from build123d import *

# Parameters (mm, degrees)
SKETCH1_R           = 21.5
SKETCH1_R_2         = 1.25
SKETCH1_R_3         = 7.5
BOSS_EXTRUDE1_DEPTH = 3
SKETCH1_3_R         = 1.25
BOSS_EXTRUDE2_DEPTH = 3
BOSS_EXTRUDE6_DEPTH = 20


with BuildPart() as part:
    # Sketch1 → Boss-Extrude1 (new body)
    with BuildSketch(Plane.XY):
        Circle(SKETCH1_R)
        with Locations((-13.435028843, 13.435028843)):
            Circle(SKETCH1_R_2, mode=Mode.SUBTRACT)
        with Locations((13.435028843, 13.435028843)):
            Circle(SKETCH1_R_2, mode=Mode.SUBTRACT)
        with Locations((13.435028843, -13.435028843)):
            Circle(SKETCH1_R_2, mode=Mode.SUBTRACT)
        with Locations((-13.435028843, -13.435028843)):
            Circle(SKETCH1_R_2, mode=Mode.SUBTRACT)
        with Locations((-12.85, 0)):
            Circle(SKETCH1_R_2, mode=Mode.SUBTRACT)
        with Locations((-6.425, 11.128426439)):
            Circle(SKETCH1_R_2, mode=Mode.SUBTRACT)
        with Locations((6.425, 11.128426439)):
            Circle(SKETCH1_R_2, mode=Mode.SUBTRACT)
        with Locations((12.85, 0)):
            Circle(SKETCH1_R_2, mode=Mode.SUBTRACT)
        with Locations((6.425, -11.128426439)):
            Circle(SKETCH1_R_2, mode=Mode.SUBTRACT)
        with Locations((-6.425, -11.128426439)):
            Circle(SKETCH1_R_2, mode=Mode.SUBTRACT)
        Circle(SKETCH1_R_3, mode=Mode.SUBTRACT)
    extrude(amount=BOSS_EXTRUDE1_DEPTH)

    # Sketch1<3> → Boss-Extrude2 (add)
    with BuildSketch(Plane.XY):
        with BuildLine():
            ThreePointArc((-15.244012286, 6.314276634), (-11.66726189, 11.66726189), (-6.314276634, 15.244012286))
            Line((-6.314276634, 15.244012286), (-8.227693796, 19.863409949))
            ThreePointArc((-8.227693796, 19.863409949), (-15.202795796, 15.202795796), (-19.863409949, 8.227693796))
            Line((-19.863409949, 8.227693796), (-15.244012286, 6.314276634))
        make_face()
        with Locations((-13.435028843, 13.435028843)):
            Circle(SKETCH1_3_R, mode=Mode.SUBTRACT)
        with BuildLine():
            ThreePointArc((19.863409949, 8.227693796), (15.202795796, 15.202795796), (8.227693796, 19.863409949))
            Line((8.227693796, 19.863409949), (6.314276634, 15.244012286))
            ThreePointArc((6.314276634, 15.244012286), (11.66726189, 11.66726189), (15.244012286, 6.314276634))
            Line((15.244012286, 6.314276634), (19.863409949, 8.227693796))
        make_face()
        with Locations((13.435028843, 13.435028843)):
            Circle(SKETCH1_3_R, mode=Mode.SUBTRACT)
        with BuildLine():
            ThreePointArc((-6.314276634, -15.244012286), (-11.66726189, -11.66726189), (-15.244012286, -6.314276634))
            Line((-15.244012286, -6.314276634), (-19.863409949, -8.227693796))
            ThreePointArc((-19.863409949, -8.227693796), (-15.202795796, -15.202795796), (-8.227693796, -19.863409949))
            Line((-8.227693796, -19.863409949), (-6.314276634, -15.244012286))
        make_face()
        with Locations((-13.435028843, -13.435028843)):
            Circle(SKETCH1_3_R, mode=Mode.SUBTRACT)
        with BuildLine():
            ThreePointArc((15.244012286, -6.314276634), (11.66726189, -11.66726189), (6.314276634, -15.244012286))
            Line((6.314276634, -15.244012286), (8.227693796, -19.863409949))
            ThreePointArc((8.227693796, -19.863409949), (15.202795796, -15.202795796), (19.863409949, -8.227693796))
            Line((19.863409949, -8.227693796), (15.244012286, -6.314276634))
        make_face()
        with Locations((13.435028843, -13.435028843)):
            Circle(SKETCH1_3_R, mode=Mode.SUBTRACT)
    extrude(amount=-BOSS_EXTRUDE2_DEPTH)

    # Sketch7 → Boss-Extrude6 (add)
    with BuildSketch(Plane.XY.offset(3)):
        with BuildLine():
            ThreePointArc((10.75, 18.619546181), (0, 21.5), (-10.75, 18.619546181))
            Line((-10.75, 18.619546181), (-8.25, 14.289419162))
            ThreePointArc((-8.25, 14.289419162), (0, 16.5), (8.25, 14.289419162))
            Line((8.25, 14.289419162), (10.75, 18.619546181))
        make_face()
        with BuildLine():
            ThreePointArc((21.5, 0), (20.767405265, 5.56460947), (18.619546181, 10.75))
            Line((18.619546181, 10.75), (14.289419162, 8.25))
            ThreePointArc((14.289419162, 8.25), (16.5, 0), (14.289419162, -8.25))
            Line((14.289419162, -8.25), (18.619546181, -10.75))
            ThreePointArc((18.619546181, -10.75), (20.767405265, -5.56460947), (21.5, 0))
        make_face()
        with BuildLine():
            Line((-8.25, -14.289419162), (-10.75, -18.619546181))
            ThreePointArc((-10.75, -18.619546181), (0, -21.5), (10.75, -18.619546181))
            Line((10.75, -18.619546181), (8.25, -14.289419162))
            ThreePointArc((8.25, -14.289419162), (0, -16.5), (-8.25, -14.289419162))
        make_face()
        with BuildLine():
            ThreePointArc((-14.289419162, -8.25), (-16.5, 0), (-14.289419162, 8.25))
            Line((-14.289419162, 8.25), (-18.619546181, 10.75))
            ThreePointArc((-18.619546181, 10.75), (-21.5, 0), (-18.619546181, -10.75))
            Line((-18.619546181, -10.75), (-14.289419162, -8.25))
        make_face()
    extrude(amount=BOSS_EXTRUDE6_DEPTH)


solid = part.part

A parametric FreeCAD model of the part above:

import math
import FreeCAD as App
import Part
import Sketcher
from FreeCAD import Vector
Q = App.Units.Quantity

doc = App.newDocument("Part")
body = doc.addObject("PartDesign::Body", "Body")

# Sketch on XY plane
sketch1 = body.newObject("Sketcher::SketchObject", "Sketch")
sketch1.AttachmentSupport = (doc.getObject("XY_Plane"), [""])
sketch1.MapMode = "FlatFace"
sketch1.addGeometry(Part.Circle(Vector(0, 0, 0), Vector(0, 0, 1), 21.5), False)
sketch1.addGeometry(Part.Circle(Vector(-13.435029, -13.435029, 0), Vector(0, 0, 1), 1.25), False)
sketch1.addGeometry(Part.Circle(Vector(-6.425, -11.128426, 0), Vector(0, 0, 1), 1.25), False)
sketch1.addGeometry(Part.Circle(Vector(-12.85, 0, 0), Vector(0, 0, 1), 1.25), False)
sketch1.addGeometry(Part.Circle(Vector(6.425, -11.128426, 0), Vector(0, 0, 1), 1.25), False)
sketch1.addGeometry(Part.Circle(Vector(13.435029, -13.435029, 0), Vector(0, 0, 1), 1.25), False)
sketch1.addGeometry(Part.Circle(Vector(12.85, 0, 0), Vector(0, 0, 1), 1.25), False)
sketch1.addGeometry(Part.Circle(Vector(-13.435029, 13.435029, 0), Vector(0, 0, 1), 1.25), False)
sketch1.addGeometry(Part.Circle(Vector(-6.425, 11.128426, 0), Vector(0, 0, 1), 1.25), False)
sketch1.addGeometry(Part.Circle(Vector(0, 0, 0), Vector(0, 0, 1), 7.5), False)
sketch1.addGeometry(Part.Circle(Vector(6.425, 11.128426, 0), Vector(0, 0, 1), 1.25), False)
sketch1.addGeometry(Part.Circle(Vector(13.435029, 13.435029, 0), Vector(0, 0, 1), 1.25), False)
sketch1.addConstraint(Sketcher.Constraint("Coincident", 0, 3, -1, 1))
sketch1.addConstraint(Sketcher.Constraint("Coincident", 9, 3, -1, 1))
sketch1.addConstraint(Sketcher.Constraint("Equal", 1, 2))
sketch1.addConstraint(Sketcher.Constraint("Equal", 2, 3))
sketch1.addConstraint(Sketcher.Constraint("Equal", 3, 4))
sketch1.addConstraint(Sketcher.Constraint("Equal", 4, 5))
sketch1.addConstraint(Sketcher.Constraint("Equal", 5, 6))
sketch1.addConstraint(Sketcher.Constraint("Equal", 6, 7))
sketch1.addConstraint(Sketcher.Constraint("Equal", 7, 8))
sketch1.addConstraint(Sketcher.Constraint("Equal", 8, 10))
sketch1.addConstraint(Sketcher.Constraint("Equal", 10, 11))
sketch1.addConstraint(Sketcher.Constraint("Symmetric", 3, 3, 6, 3, -1, 1))
sketch1.addConstraint(Sketcher.Constraint("Symmetric", 5, 3, 7, 3, -1, 1))
sketch1.addConstraint(Sketcher.Constraint("Symmetric", 4, 3, 8, 3, -1, 1))
sketch1.addConstraint(Sketcher.Constraint("Symmetric", 2, 3, 10, 3, -1, 1))
sketch1.addConstraint(Sketcher.Constraint("Symmetric", 1, 3, 11, 3, -1, 1))
sketch1.addConstraint(Sketcher.Constraint("Symmetric", 2, 3, 4, 3, -2))
sketch1.addConstraint(Sketcher.Constraint("Symmetric", 1, 3, 5, 3, -2))
sketch1.addConstraint(Sketcher.Constraint("PointOnObject", 3, 3, -1))
sketch1.addConstraint(Sketcher.Constraint("Diameter", 0, 43.0))
sketch1.addConstraint(Sketcher.Constraint("Diameter", 9, 15.0))
sketch1.addConstraint(Sketcher.Constraint("Diameter", 1, 2.5))
sketch1.addConstraint(Sketcher.Constraint("DistanceX", 3, 3, 6, 3, 25.7))
sketch1.addConstraint(Sketcher.Constraint("DistanceX", 2, 3, 4, 3, 12.85))
sketch1.addConstraint(Sketcher.Constraint("DistanceX", 1, 3, -1, 1, 13.435029))
sketch1.addConstraint(Sketcher.Constraint("DistanceY", 1, 3, -1, 1, 13.435029))
sketch1.addConstraint(Sketcher.Constraint("DistanceY", 2, 3, -1, 1, 11.128426))
pad1 = body.newObject("PartDesign::Pad", "Pad")
pad1.Profile = sketch1
pad1.Length = 3

# Sketch on XY plane
sketch2 = body.newObject("Sketcher::SketchObject", "Sketch001")
sketch2.AttachmentSupport = (doc.getObject("XY_Plane"), [""])
sketch2.MapMode = "FlatFace"
sketch2.addGeometry(Part.ArcOfCircle(Part.Circle(Vector(0, 0, 0), Vector(0, 0, 1), 16.5), math.radians(112.5), math.radians(157.5)), False)
sketch2.addGeometry(Part.LineSegment(Vector(-6.314277, 15.244012, 0), Vector(-8.227694, 19.86341, 0)), False)
sketch2.addGeometry(Part.ArcOfCircle(Part.Circle(Vector(0, 0, 0), Vector(0, 0, 1), 21.5), math.radians(112.5), math.radians(157.5)), False)
sketch2.addGeometry(Part.LineSegment(Vector(-19.86341, 8.227694, 0), Vector(-15.244012, 6.314277, 0)), False)
sketch2.addGeometry(Part.Circle(Vector(-13.435029, 13.435029, 0), Vector(0, 0, 1), 1.25), False)
sketch2.addGeometry(Part.ArcOfCircle(Part.Circle(Vector(0, 0, 0), Vector(0, 0, 1), 21.5), math.radians(22.5), math.radians(67.5)), False)
sketch2.addGeometry(Part.LineSegment(Vector(8.227694, 19.86341, 0), Vector(6.314277, 15.244012, 0)), False)
sketch2.addGeometry(Part.ArcOfCircle(Part.Circle(Vector(0, 0, 0), Vector(0, 0, 1), 16.5), math.radians(22.5), math.radians(67.5)), False)
sketch2.addGeometry(Part.LineSegment(Vector(15.244012, 6.314277, 0), Vector(19.86341, 8.227694, 0)), False)
sketch2.addGeometry(Part.Circle(Vector(13.435029, 13.435029, 0), Vector(0, 0, 1), 1.25), False)
sketch2.addGeometry(Part.ArcOfCircle(Part.Circle(Vector(0, 0, 0), Vector(0, 0, 1), 16.5), math.radians(-157.5), math.radians(-112.5)), False)
sketch2.addGeometry(Part.LineSegment(Vector(-15.244012, -6.314277, 0), Vector(-19.86341, -8.227694, 0)), False)
sketch2.addGeometry(Part.ArcOfCircle(Part.Circle(Vector(0, 0, 0), Vector(0, 0, 1), 21.5), math.radians(-157.5), math.radians(-112.5)), False)
sketch2.addGeometry(Part.LineSegment(Vector(-8.227694, -19.86341, 0), Vector(-6.314277, -15.244012, 0)), False)
sketch2.addGeometry(Part.Circle(Vector(-13.435029, -13.435029, 0), Vector(0, 0, 1), 1.25), False)
sketch2.addGeometry(Part.ArcOfCircle(Part.Circle(Vector(0, 0, 0), Vector(0, 0, 1), 16.5), math.radians(-67.5), math.radians(-22.5)), False)
sketch2.addGeometry(Part.LineSegment(Vector(6.314277, -15.244012, 0), Vector(8.227694, -19.86341, 0)), False)
sketch2.addGeometry(Part.ArcOfCircle(Part.Circle(Vector(0, 0, 0), Vector(0, 0, 1), 21.5), math.radians(-67.5), math.radians(-22.5)), False)
sketch2.addGeometry(Part.LineSegment(Vector(19.86341, -8.227694, 0), Vector(15.244012, -6.314277, 0)), False)
sketch2.addGeometry(Part.Circle(Vector(13.435029, -13.435029, 0), Vector(0, 0, 1), 1.25), False)
sketch2.addConstraint(Sketcher.Constraint("Coincident", 0, 1, 1, 1))
sketch2.addConstraint(Sketcher.Constraint("Coincident", 1, 2, 2, 1))
sketch2.addConstraint(Sketcher.Constraint("Coincident", 2, 2, 3, 1))
sketch2.addConstraint(Sketcher.Constraint("Coincident", 3, 2, 0, 2))
sketch2.addConstraint(Sketcher.Constraint("Coincident", 5, 2, 6, 1))
sketch2.addConstraint(Sketcher.Constraint("Coincident", 6, 2, 7, 2))
sketch2.addConstraint(Sketcher.Constraint("Coincident", 7, 1, 8, 1))
sketch2.addConstraint(Sketcher.Constraint("Coincident", 8, 2, 5, 1))
sketch2.addConstraint(Sketcher.Constraint("Coincident", 10, 1, 11, 1))
sketch2.addConstraint(Sketcher.Constraint("Coincident", 11, 2, 12, 1))
sketch2.addConstraint(Sketcher.Constraint("Coincident", 12, 2, 13, 1))
sketch2.addConstraint(Sketcher.Constraint("Coincident", 13, 2, 10, 2))
sketch2.addConstraint(Sketcher.Constraint("Coincident", 15, 1, 16, 1))
sketch2.addConstraint(Sketcher.Constraint("Coincident", 16, 2, 17, 1))
sketch2.addConstraint(Sketcher.Constraint("Coincident", 17, 2, 18, 1))
sketch2.addConstraint(Sketcher.Constraint("Coincident", 18, 2, 15, 2))
sketch2.addConstraint(Sketcher.Constraint("Coincident", 0, 3, -1, 1))
sketch2.addConstraint(Sketcher.Constraint("Coincident", 2, 3, -1, 1))
sketch2.addConstraint(Sketcher.Constraint("Coincident", 5, 3, -1, 1))
sketch2.addConstraint(Sketcher.Constraint("Coincident", 7, 3, -1, 1))
sketch2.addConstraint(Sketcher.Constraint("Coincident", 10, 3, -1, 1))
sketch2.addConstraint(Sketcher.Constraint("Coincident", 12, 3, -1, 1))
sketch2.addConstraint(Sketcher.Constraint("Coincident", 15, 3, -1, 1))
sketch2.addConstraint(Sketcher.Constraint("Coincident", 17, 3, -1, 1))
sketch2.addConstraint(Sketcher.Constraint("Equal", 2, 5))
sketch2.addConstraint(Sketcher.Constraint("Equal", 0, 7))
sketch2.addConstraint(Sketcher.Constraint("Equal", 4, 9))
sketch2.addConstraint(Sketcher.Constraint("Equal", 7, 10))
sketch2.addConstraint(Sketcher.Constraint("Equal", 5, 12))
sketch2.addConstraint(Sketcher.Constraint("Equal", 9, 14))
sketch2.addConstraint(Sketcher.Constraint("Equal", 10, 15))
sketch2.addConstraint(Sketcher.Constraint("Equal", 12, 17))
sketch2.addConstraint(Sketcher.Constraint("Equal", 14, 19))
sketch2.addConstraint(Sketcher.Constraint("Symmetric", 9, 3, 14, 3, -1, 1))
sketch2.addConstraint(Sketcher.Constraint("Symmetric", 4, 3, 19, 3, -1, 1))
sketch2.addConstraint(Sketcher.Constraint("Symmetric", 4, 3, 9, 3, -2))
sketch2.addConstraint(Sketcher.Constraint("Perpendicular", 3, 6))
sketch2.addConstraint(Sketcher.Constraint("Perpendicular", 1, 8))
sketch2.addConstraint(Sketcher.Constraint("Parallel", 8, 11))
sketch2.addConstraint(Sketcher.Constraint("Parallel", 6, 13))
sketch2.addConstraint(Sketcher.Constraint("Perpendicular", 11, 16))
sketch2.addConstraint(Sketcher.Constraint("Perpendicular", 13, 18))
sketch2.addConstraint(Sketcher.Constraint("Horizontal", 1, 2, 5, 2))
sketch2.addConstraint(Sketcher.Constraint("Horizontal", 0, 1, 6, 2))
sketch2.addConstraint(Sketcher.Constraint("Horizontal", 3, 2, 7, 1))
sketch2.addConstraint(Sketcher.Constraint("Horizontal", 13, 2, 15, 1))
sketch2.addConstraint(Sketcher.Constraint("Horizontal", 11, 2, 17, 2))
sketch2.addConstraint(Sketcher.Constraint("Vertical", 3, 2, 10, 1))
sketch2.addConstraint(Sketcher.Constraint("Vertical", 1, 2, 12, 2))
sketch2.addConstraint(Sketcher.Constraint("Diameter", 4, 2.5))
sketch2.addConstraint(Sketcher.Constraint("Radius", 0, 16.5))
sketch2.addConstraint(Sketcher.Constraint("Radius", 2, 21.5))
sketch2.addConstraint(Sketcher.Constraint("Angle", 1, Q("112.5 deg")))
sketch2.addConstraint(Sketcher.Constraint("DistanceX", 4, 3, -1, 1, 13.435029))
sketch2.addConstraint(Sketcher.Constraint("DistanceY", -1, 1, 4, 3, 13.435029))
sketch2.addConstraint(Sketcher.Constraint("DistanceY", -1, 1, 1, 2, 19.86341))
sketch2.addConstraint(Sketcher.Constraint("DistanceX", 2, 2, -1, 1, 19.86341))
pad2 = body.newObject("PartDesign::Pad", "Pad001")
pad2.Profile = sketch2
pad2.Length = 3
pad2.Reversed = True

# Sketch on XY plane
sketch3 = body.newObject("Sketcher::SketchObject", "Sketch002")
sketch3.AttachmentSupport = (doc.getObject("XY_Plane"), [""])
sketch3.MapMode = "FlatFace"
sketch3.AttachmentOffset = App.Placement(Vector(0, 0, 3), App.Rotation())
sketch3.addGeometry(Part.ArcOfCircle(Part.Circle(Vector(0, 0, 0), Vector(0, 0, 1), 21.5), math.radians(60), math.radians(120)), False)
sketch3.addGeometry(Part.LineSegment(Vector(-10.75, 18.619546, 0), Vector(-8.25, 14.289419, 0)), False)
sketch3.addGeometry(Part.ArcOfCircle(Part.Circle(Vector(0, 0, 0), Vector(0, 0, 1), 16.5), math.radians(60), math.radians(120)), False)
sketch3.addGeometry(Part.LineSegment(Vector(8.25, 14.289419, 0), Vector(10.75, 18.619546, 0)), False)
sketch3.addGeometry(Part.ArcOfCircle(Part.Circle(Vector(0, 0, 0), Vector(0, 0, 1), 21.5), math.radians(0), math.radians(30)), False)
sketch3.addGeometry(Part.LineSegment(Vector(18.619546, 10.75, 0), Vector(14.289419, 8.25, 0)), False)
sketch3.addGeometry(Part.ArcOfCircle(Part.Circle(Vector(0, 0, 0), Vector(0, 0, 1), 16.5), math.radians(-30), math.radians(30)), False)
sketch3.addGeometry(Part.LineSegment(Vector(14.289419, -8.25, 0), Vector(18.619546, -10.75, 0)), False)
sketch3.addGeometry(Part.ArcOfCircle(Part.Circle(Vector(0, 0, 0), Vector(0, 0, 1), 21.5), math.radians(-30), math.radians(0)), False)
sketch3.addGeometry(Part.LineSegment(Vector(-8.25, -14.289419, 0), Vector(-10.75, -18.619546, 0)), False)
sketch3.addGeometry(Part.ArcOfCircle(Part.Circle(Vector(0, 0, 0), Vector(0, 0, 1), 21.5), math.radians(-120), math.radians(-60)), False)
sketch3.addGeometry(Part.LineSegment(Vector(10.75, -18.619546, 0), Vector(8.25, -14.289419, 0)), False)
sketch3.addGeometry(Part.ArcOfCircle(Part.Circle(Vector(0, 0, 0), Vector(0, 0, 1), 16.5), math.radians(-120), math.radians(-60)), False)
sketch3.addGeometry(Part.ArcOfCircle(Part.Circle(Vector(0, 0, 0), Vector(0, 0, 1), 16.5), math.radians(150), math.radians(210)), False)
sketch3.addGeometry(Part.LineSegment(Vector(-14.289419, 8.25, 0), Vector(-18.619546, 10.75, 0)), False)
sketch3.addGeometry(Part.ArcOfCircle(Part.Circle(Vector(0, 0, 0), Vector(0, 0, 1), 21.5), math.radians(150), math.radians(210)), False)
sketch3.addGeometry(Part.LineSegment(Vector(-18.619546, -10.75, 0), Vector(-14.289419, -8.25, 0)), False)
sketch3.addConstraint(Sketcher.Constraint("Coincident", 0, 2, 1, 1))
sketch3.addConstraint(Sketcher.Constraint("Coincident", 1, 2, 2, 2))
sketch3.addConstraint(Sketcher.Constraint("Coincident", 2, 1, 3, 1))
sketch3.addConstraint(Sketcher.Constraint("Coincident", 3, 2, 0, 1))
sketch3.addConstraint(Sketcher.Constraint("Coincident", 4, 2, 5, 1))
sketch3.addConstraint(Sketcher.Constraint("Coincident", 5, 2, 6, 2))
sketch3.addConstraint(Sketcher.Constraint("Coincident", 6, 1, 7, 1))
sketch3.addConstraint(Sketcher.Constraint("Coincident", 7, 2, 8, 1))
sketch3.addConstraint(Sketcher.Constraint("Tangent", 8, 2, 4, 1))
sketch3.addConstraint(Sketcher.Constraint("Coincident", 9, 2, 10, 1))
sketch3.addConstraint(Sketcher.Constraint("Coincident", 10, 2, 11, 1))
sketch3.addConstraint(Sketcher.Constraint("Coincident", 11, 2, 12, 2))
sketch3.addConstraint(Sketcher.Constraint("Coincident", 12, 1, 9, 1))
sketch3.addConstraint(Sketcher.Constraint("Coincident", 13, 1, 14, 1))
sketch3.addConstraint(Sketcher.Constraint("Coincident", 14, 2, 15, 1))
sketch3.addConstraint(Sketcher.Constraint("Coincident", 15, 2, 16, 1))
sketch3.addConstraint(Sketcher.Constraint("Coincident", 16, 2, 13, 2))
sketch3.addConstraint(Sketcher.Constraint("Coincident", 0, 3, -1, 1))
sketch3.addConstraint(Sketcher.Constraint("Coincident", 2, 3, -1, 1))
sketch3.addConstraint(Sketcher.Constraint("Coincident", 4, 3, -1, 1))
sketch3.addConstraint(Sketcher.Constraint("Coincident", 6, 3, -1, 1))
sketch3.addConstraint(Sketcher.Constraint("Coincident", 10, 3, -1, 1))
sketch3.addConstraint(Sketcher.Constraint("Coincident", 12, 3, -1, 1))
sketch3.addConstraint(Sketcher.Constraint("Coincident", 13, 3, -1, 1))
sketch3.addConstraint(Sketcher.Constraint("Coincident", 15, 3, -1, 1))
sketch3.addConstraint(Sketcher.Constraint("Equal", 0, 4))
sketch3.addConstraint(Sketcher.Constraint("Equal", 2, 6))
sketch3.addConstraint(Sketcher.Constraint("Equal", 4, 8))
sketch3.addConstraint(Sketcher.Constraint("Equal", 8, 10))
sketch3.addConstraint(Sketcher.Constraint("Equal", 6, 12))
sketch3.addConstraint(Sketcher.Constraint("Equal", 12, 13))
sketch3.addConstraint(Sketcher.Constraint("Equal", 10, 15))
sketch3.addConstraint(Sketcher.Constraint("PointOnObject", 8, 2, -1))
sketch3.addConstraint(Sketcher.Constraint("Perpendicular", 1, 5))
sketch3.addConstraint(Sketcher.Constraint("Perpendicular", 3, 7))
sketch3.addConstraint(Sketcher.Constraint("Perpendicular", 7, 9))
sketch3.addConstraint(Sketcher.Constraint("Perpendicular", 5, 11))
sketch3.addConstraint(Sketcher.Constraint("Perpendicular", 9, 14))
sketch3.addConstraint(Sketcher.Constraint("Perpendicular", 11, 16))
sketch3.addConstraint(Sketcher.Constraint("Horizontal", 1, 2, 2, 1))
sketch3.addConstraint(Sketcher.Constraint("Horizontal", 0, 2, 3, 2))
sketch3.addConstraint(Sketcher.Constraint("Horizontal", 9, 2, 10, 2))
sketch3.addConstraint(Sketcher.Constraint("Horizontal", 5, 2, 13, 1))
sketch3.addConstraint(Sketcher.Constraint("Horizontal", 7, 2, 15, 2))
sketch3.addConstraint(Sketcher.Constraint("Vertical", 5, 2, 6, 1))
sketch3.addConstraint(Sketcher.Constraint("Vertical", 0, 2, 9, 2))
sketch3.addConstraint(Sketcher.Constraint("Radius", 0, 21.5))
sketch3.addConstraint(Sketcher.Constraint("Radius", 2, 16.5))
sketch3.addConstraint(Sketcher.Constraint("Angle", 1, Q("-60 deg")))
sketch3.addConstraint(Sketcher.Constraint("DistanceX", 1, 2, 3, 2, 19.0))
sketch3.addConstraint(Sketcher.Constraint("DistanceY", 7, 2, 5, 2, 19.0))
pad3 = body.newObject("PartDesign::Pad", "Pad002")
pad3.Profile = sketch3
pad3.Length = 20

doc.recompute()
